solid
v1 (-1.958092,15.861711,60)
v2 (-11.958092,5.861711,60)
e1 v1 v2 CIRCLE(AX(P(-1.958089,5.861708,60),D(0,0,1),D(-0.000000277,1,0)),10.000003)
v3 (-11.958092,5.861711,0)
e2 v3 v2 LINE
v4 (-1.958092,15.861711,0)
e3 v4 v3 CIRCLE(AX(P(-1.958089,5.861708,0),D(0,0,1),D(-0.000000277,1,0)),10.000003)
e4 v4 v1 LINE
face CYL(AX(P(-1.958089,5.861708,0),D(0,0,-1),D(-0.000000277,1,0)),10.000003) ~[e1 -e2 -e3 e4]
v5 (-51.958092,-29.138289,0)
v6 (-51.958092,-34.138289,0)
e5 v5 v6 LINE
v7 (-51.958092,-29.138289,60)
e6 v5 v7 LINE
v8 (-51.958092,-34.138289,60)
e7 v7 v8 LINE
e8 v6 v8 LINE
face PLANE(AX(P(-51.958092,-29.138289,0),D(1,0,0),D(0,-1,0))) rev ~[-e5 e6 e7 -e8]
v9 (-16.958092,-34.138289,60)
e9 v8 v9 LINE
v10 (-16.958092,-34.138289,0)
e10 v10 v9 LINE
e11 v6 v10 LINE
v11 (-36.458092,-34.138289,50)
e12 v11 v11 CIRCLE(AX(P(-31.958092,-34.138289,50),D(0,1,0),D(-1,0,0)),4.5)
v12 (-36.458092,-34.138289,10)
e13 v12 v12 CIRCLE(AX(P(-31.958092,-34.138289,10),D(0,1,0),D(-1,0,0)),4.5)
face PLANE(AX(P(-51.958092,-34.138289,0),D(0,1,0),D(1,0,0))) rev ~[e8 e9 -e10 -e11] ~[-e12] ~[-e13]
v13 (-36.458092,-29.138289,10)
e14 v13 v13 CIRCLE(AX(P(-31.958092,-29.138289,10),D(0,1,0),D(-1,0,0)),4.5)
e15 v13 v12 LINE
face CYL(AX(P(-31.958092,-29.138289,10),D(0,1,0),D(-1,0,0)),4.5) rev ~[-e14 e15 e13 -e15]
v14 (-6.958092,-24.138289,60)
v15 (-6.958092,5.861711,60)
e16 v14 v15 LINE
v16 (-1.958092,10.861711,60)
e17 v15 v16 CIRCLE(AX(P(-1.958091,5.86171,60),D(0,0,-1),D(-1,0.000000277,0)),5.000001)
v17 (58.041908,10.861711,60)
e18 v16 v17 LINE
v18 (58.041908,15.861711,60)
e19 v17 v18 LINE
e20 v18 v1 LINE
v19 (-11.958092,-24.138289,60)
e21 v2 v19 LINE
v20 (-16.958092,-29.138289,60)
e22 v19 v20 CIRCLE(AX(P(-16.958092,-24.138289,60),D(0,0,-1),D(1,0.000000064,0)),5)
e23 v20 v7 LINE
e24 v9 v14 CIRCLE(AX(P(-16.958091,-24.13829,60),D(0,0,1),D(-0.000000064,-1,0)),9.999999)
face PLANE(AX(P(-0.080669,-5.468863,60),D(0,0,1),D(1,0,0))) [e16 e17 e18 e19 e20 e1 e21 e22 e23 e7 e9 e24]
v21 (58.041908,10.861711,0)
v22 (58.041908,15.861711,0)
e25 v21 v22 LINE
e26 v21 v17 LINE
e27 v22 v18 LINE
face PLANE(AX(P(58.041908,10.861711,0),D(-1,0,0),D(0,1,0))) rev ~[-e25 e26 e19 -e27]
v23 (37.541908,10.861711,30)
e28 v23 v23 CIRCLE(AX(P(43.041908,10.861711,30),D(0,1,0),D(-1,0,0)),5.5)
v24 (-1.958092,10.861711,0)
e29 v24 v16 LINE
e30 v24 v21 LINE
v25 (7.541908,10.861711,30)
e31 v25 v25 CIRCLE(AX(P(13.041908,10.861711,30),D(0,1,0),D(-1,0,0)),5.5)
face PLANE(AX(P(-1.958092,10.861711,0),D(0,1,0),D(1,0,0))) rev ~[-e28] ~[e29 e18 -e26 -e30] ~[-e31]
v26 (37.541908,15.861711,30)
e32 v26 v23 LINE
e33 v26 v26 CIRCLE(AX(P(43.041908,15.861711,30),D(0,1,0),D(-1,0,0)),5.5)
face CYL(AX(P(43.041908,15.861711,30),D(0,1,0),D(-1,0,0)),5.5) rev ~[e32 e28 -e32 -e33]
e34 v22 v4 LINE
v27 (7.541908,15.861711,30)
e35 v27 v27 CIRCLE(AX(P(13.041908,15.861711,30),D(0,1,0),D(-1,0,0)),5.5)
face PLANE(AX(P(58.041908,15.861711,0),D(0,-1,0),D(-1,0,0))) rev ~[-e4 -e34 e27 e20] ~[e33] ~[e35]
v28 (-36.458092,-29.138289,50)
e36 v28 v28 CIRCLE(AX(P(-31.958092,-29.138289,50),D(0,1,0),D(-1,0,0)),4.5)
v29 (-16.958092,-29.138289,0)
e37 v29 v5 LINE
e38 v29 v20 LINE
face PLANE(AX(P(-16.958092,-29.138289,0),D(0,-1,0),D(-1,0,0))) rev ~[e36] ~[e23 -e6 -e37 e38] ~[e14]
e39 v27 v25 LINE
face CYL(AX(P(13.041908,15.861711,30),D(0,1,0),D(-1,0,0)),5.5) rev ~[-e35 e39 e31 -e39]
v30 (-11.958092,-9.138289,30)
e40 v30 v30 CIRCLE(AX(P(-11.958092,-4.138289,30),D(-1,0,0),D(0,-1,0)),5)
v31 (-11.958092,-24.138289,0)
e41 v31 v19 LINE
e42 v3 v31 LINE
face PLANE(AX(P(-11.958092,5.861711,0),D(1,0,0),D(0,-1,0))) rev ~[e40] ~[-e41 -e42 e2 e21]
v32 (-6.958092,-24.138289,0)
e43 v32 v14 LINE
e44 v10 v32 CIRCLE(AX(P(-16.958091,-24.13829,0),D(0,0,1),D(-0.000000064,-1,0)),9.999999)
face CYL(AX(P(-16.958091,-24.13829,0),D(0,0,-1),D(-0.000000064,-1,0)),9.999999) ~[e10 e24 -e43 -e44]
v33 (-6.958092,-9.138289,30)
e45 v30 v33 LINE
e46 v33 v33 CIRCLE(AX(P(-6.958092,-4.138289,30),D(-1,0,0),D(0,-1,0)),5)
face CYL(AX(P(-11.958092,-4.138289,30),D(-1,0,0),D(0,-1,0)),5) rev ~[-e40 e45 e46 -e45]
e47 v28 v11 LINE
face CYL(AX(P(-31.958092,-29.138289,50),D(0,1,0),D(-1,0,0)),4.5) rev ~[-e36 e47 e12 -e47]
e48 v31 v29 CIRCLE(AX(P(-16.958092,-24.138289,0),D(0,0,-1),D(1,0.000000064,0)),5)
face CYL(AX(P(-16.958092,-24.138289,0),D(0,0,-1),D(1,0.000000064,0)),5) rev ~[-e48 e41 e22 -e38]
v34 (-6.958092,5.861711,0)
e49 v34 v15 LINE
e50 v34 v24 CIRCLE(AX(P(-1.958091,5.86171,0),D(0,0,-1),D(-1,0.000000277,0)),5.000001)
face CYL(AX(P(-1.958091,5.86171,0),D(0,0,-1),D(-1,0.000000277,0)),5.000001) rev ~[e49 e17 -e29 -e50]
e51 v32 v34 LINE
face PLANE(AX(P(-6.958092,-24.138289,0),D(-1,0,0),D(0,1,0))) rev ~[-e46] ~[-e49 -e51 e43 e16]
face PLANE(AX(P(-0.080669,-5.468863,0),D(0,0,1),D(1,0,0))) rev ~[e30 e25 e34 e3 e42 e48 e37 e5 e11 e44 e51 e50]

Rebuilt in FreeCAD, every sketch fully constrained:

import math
import FreeCAD as App
import Part
import Sketcher

V = App.Vector

doc = App.newDocument("Part")
body = doc.addObject("PartDesign::Body", "Body")

sketch1 = body.newObject("Sketcher::SketchObject", "Sketch")
sketch1.AttachmentSupport = (doc.getObject("XY_Plane"), [""])
sketch1.MapMode = "FlatFace"
sketch1.addGeometry([
    Part.LineSegment(V(-17, -29.1, 0), V(-52, -29.1, 0)),
    Part.LineSegment(V(-52, -29.1, 0), V(-52, -34.1, 0)),
    Part.LineSegment(V(-52, -34.1, 0), V(-17, -34.1, 0)),
    Part.ArcOfCircle(Part.Circle(V(-17, -24.1, 0), V(0, 0, 1), 10), math.radians(-90), math.radians(0)),
    Part.LineSegment(V(-7, -24.1, 0), V(-7, 5.9, 0)),
    Part.ArcOfCircle(Part.Circle(V(-2, 5.9, 0), V(0, 0, 1), 5), math.radians(90), math.radians(180)),
    Part.LineSegment(V(-2, 10.9, 0), V(58, 10.9, 0)),
    Part.LineSegment(V(58, 10.9, 0), V(58, 15.9, 0)),
    Part.LineSegment(V(58, 15.9, 0), V(-2, 15.9, 0)),
    Part.ArcOfCircle(Part.Circle(V(-2, 5.9, 0), V(0, 0, 1), 10), math.radians(90), math.radians(180)),
    Part.LineSegment(V(-12, 5.9, 0), V(-12, -24.1, 0)),
    Part.ArcOfCircle(Part.Circle(V(-17, -24.1, 0), V(0, 0, 1), 5), math.radians(-90), math.radians(0)),
], False)
sketch1.addConstraint([
    Sketcher.Constraint("Coincident", 0, 2, 1, 1),
    Sketcher.Constraint("Coincident", 1, 2, 2, 1),
    Sketcher.Constraint("Tangent", 2, 2, 3, 1),
    Sketcher.Constraint("Tangent", 3, 2, 4, 1),
    Sketcher.Constraint("Tangent", 4, 2, 5, 2),
    Sketcher.Constraint("Tangent", 5, 1, 6, 1),
    Sketcher.Constraint("Coincident", 6, 2, 7, 1),
    Sketcher.Constraint("Coincident", 7, 2, 8, 1),
    Sketcher.Constraint("Tangent", 8, 2, 9, 1),
    Sketcher.Constraint("Tangent", 9, 2, 10, 1),
    Sketcher.Constraint("Tangent", 10, 2, 11, 2),
    Sketcher.Constraint("Tangent", 11, 1, 0, 1),
    Sketcher.Constraint("Horizontal", 0),
    Sketcher.Constraint("Vertical", 1),
    Sketcher.Constraint("Horizontal", 2),
    Sketcher.Constraint("Vertical", 4),
    Sketcher.Constraint("Horizontal", 6),
    Sketcher.Constraint("Vertical", 7),
    Sketcher.Constraint("Horizontal", 8),
    Sketcher.Constraint("Vertical", 10),
    Sketcher.Constraint("Coincident", 9, 3, 5, 3),
    Sketcher.Constraint("Coincident", 11, 3, 3, 3),
    Sketcher.Constraint("Equal", 5, 11),
    Sketcher.Constraint("Radius", 3, 9.999999),
    Sketcher.Constraint("Radius", 5, 5.000001),
    Sketcher.Constraint("DistanceX", 0, 2, 0, 1, 35.0),
    Sketcher.Constraint("DistanceX", 6, 1, 6, 2, 60.0),
    Sketcher.Constraint("DistanceY", 4, 1, 4, 2, 30.0),
    Sketcher.Constraint("DistanceX", 3, 3, -1, 1, 16.958091),
    Sketcher.Constraint("DistanceY", 3, 3, -1, 1, 24.13829),
])
pad1 = body.newObject("PartDesign::Pad", "Pad")
pad1.Profile = sketch1
pad1.Length = 60

sketch2 = body.newObject("Sketcher::SketchObject", "Sketch001")
sketch2.AttachmentSupport = (doc.getObject("XY_Plane"), [""])
sketch2.MapMode = "FlatFace"
sketch2.addGeometry([
    Part.LineSegment(V(-17, -29.1, 0), V(-52, -29.1, 0)),
    Part.LineSegment(V(-52, -29.1, 0), V(-52, -34.1, 0)),
    Part.LineSegment(V(-52, -34.1, 0), V(-17, -34.1, 0)),
    Part.ArcOfCircle(Part.Circle(V(-17, -24.1, 0), V(0, 0, 1), 10), math.radians(-90), math.radians(0)),
    Part.LineSegment(V(-7, -24.1, 0), V(-7, 5.9, 0)),
    Part.ArcOfCircle(Part.Circle(V(-2, 5.9, 0), V(0, 0, 1), 5), math.radians(90), math.radians(180)),
    Part.LineSegment(V(-2, 10.9, 0), V(58, 10.9, 0)),
    Part.LineSegment(V(58, 10.9, 0), V(58, 15.9, 0)),
    Part.LineSegment(V(58, 15.9, 0), V(-2, 15.9, 0)),
    Part.ArcOfCircle(Part.Circle(V(-2, 5.9, 0), V(0, 0, 1), 10), math.radians(90), math.radians(180)),
    Part.LineSegment(V(-12, 5.9, 0), V(-12, -24.1, 0)),
    Part.ArcOfCircle(Part.Circle(V(-17, -24.1, 0), V(0, 0, 1), 5), math.radians(-90), math.radians(0)),
], False)
sketch2.addConstraint([
    Sketcher.Constraint("Coincident", 0, 2, 1, 1),
    Sketcher.Constraint("Coincident", 1, 2, 2, 1),
    Sketcher.Constraint("Tangent", 2, 2, 3, 1),
    Sketcher.Constraint("Tangent", 3, 2, 4, 1),
    Sketcher.Constraint("Tangent", 4, 2, 5, 2),
    Sketcher.Constraint("Tangent", 5, 1, 6, 1),
    Sketcher.Constraint("Coincident", 6, 2, 7, 1),
    Sketcher.Constraint("Coincident", 7, 2, 8, 1),
    Sketcher.Constraint("Tangent", 8, 2, 9, 1),
    Sketcher.Constraint("Tangent", 9, 2, 10, 1),
    Sketcher.Constraint("Tangent", 10, 2, 11, 2),
    Sketcher.Constraint("Tangent", 11, 1, 0, 1),
    Sketcher.Constraint("Horizontal", 0),
    Sketcher.Constraint("Vertical", 1),
    Sketcher.Constraint("Horizontal", 2),
    Sketcher.Constraint("Vertical", 4),
    Sketcher.Constraint("Horizontal", 6),
    Sketcher.Constraint("Vertical", 7),
    Sketcher.Constraint("Horizontal", 8),
    Sketcher.Constraint("Vertical", 10),
    Sketcher.Constraint("Coincident", 9, 3, 5, 3),
    Sketcher.Constraint("Coincident", 11, 3, 3, 3),
    Sketcher.Constraint("Equal", 5, 11),
    Sketcher.Constraint("Radius", 3, 9.999999),
    Sketcher.Constraint("Radius", 5, 5.000001),
    Sketcher.Constraint("DistanceX", 0, 2, 0, 1, 35.0),
    Sketcher.Constraint("DistanceX", 6, 1, 6, 2, 60.0),
    Sketcher.Constraint("DistanceY", 4, 1, 4, 2, 30.0),
    Sketcher.Constraint("DistanceX", 3, 3, -1, 1, 16.958091),
    Sketcher.Constraint("DistanceY", 3, 3, -1, 1, 24.13829),
])
pad2 = body.newObject("PartDesign::Pad", "Pad001")
pad2.Profile = sketch2
pad2.Length = 60

sketch3 = body.newObject("Sketcher::SketchObject", "Sketch002")
sketch3.AttachmentSupport = (doc.getObject("XZ_Plane"), [""])
sketch3.MapMode = "FlatFace"
sketch3.AttachmentOffset = App.Placement(V(0, 0, 29.138289), App.Rotation())
sketch3.addGeometry([
    Part.Circle(V(-32, 10, 0), V(0, 0, 1), 4.5),
    Part.Circle(V(-32, 50, 0), V(0, 0, 1), 4.5),
], False)
sketch3.addConstraint([
    Sketcher.Constraint("Equal", 0, 1),
    Sketcher.Constraint("Vertical", 0, 3, 1, 3),
    Sketcher.Constraint("Diameter", 0, 9.0),
    Sketcher.Constraint("DistanceY", -1, 1, 0, 3, 10.0),
    Sketcher.Constraint("DistanceY", -1, 1, 1, 3, 50.0),
    Sketcher.Constraint("DistanceX", 0, 3, -1, 1, 31.958092),
])
pocket1 = body.newObject("PartDesign::Pocket", "Pocket")
pocket1.Profile = sketch3
pocket1.Length = 25
pocket1.Reversed = True

sketch4 = body.newObject("Sketcher::SketchObject", "Sketch003")
sketch4.AttachmentSupport = (doc.getObject("XZ_Plane"), [""])
sketch4.MapMode = "FlatFace"
sketch4.AttachmentOffset = App.Placement(V(0, 0, -15.861711), App.Rotation())
sketch4.addGeometry([
    Part.Circle(V(13, 30, 0), V(0, 0, 1), 6),
    Part.Circle(V(43, 30, 0), V(0, 0, 1), 6),
], False)
sketch4.addConstraint([
    Sketcher.Constraint("Equal", 0, 1),
    Sketcher.Constraint("Horizontal", 0, 3, 1, 3),
    Sketcher.Constraint("Diameter", 0, 11.0),
    Sketcher.Constraint("DistanceY", -1, 1, 0, 3, 30.0),
    Sketcher.Constraint("DistanceX", 0, 3, 1, 3, 30.0),
    Sketcher.Constraint("DistanceX", -1, 1, 0, 3, 13.041908),
])
pocket2 = body.newObject("PartDesign::Pocket", "Pocket001")
pocket2.Profile = sketch4
pocket2.Length = 25
pocket2.Reversed = True

sketch5 = body.newObject("Sketcher::SketchObject", "Sketch004")
sketch5.AttachmentSupport = (doc.getObject("YZ_Plane"), [""])
sketch5.MapMode = "FlatFace"
sketch5.AttachmentOffset = App.Placement(V(0, 0, -11.958092), App.Rotation())
sketch5.addGeometry(Part.Circle(V(-4, 30, 0), V(0, 0, 1), 5), False)
sketch5.addConstraint([
    Sketcher.Constraint("Diameter", 0, 10.0),
    Sketcher.Constraint("DistanceY", -1, 1, 0, 3, 30.0),
    Sketcher.Constraint("DistanceX", 0, 3, -1, 1, 4.138289),
])
pocket3 = body.newObject("PartDesign::Pocket", "Pocket002")
pocket3.Profile = sketch5
pocket3.Length = 25
pocket3.Reversed = True

sketch6 = body.newObject("Sketcher::SketchObject", "Sketch005")
sketch6.AttachmentSupport = (doc.getObject("YZ_Plane"), [""])
sketch6.MapMode = "FlatFace"
sketch6.AttachmentOffset = App.Placement(V(0, 0, -11.958092), App.Rotation())
sketch6.addGeometry(Part.Circle(V(-4, 30, 0), V(0, 0, 1), 5), False)
sketch6.addConstraint([
    Sketcher.Constraint("Diameter", 0, 10.0),
    Sketcher.Constraint("DistanceY", -1, 1, 0, 3, 30.0),
    Sketcher.Constraint("DistanceX", 0, 3, -1, 1, 4.138289),
])
pocket4 = body.newObject("PartDesign::Pocket", "Pocket003")
pocket4.Profile = sketch6
pocket4.Length = 25
pocket4.Reversed = True

sketch7 = body.newObject("Sketcher::SketchObject", "Sketch006")
sketch7.AttachmentSupport = (doc.getObject("YZ_Plane"), [""])
sketch7.MapMode = "FlatFace"
sketch7.AttachmentOffset = App.Placement(V(0, 0, -11.958092), App.Rotation())
sketch7.addGeometry(Part.Circle(V(-4, 30, 0), V(0, 0, 1), 5), False)
sketch7.addConstraint([
    Sketcher.Constraint("Diameter", 0, 10.0),
    Sketcher.Constraint("DistanceY", -1, 1, 0, 3, 30.0),
    Sketcher.Constraint("DistanceX", 0, 3, -1, 1, 4.138289),
])
pocket5 = body.newObject("PartDesign::Pocket", "Pocket004")
pocket5.Profile = sketch7
pocket5.Length = 25
pocket5.Reversed = True

sketch8 = body.newObject("Sketcher::SketchObject", "Sketch007")
sketch8.AttachmentSupport = (doc.getObject("YZ_Plane"), [""])
sketch8.MapMode = "FlatFace"
sketch8.AttachmentOffset = App.Placement(V(0, 0, -11.958092), App.Rotation())
sketch8.addGeometry(Part.Circle(V(-4, 30, 0), V(0, 0, 1), 5), False)
sketch8.addConstraint([
    Sketcher.Constraint("Diameter", 0, 10.0),
    Sketcher.Constraint("DistanceY", -1, 1, 0, 3, 30.0),
    Sketcher.Constraint("DistanceX", 0, 3, -1, 1, 4.138289),
])
pocket6 = body.newObject("PartDesign::Pocket", "Pocket005")
pocket6.Profile = sketch8
pocket6.Length = 25
pocket6.Reversed = True

doc.recompute()
